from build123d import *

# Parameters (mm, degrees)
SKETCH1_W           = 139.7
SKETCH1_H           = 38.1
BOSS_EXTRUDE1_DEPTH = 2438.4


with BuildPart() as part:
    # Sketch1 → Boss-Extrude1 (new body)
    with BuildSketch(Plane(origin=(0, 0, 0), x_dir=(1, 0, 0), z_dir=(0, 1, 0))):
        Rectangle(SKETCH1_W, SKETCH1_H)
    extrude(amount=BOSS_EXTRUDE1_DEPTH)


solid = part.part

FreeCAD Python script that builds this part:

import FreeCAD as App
import Part
import Sketcher
from FreeCAD import Vector
Q = App.Units.Quantity

doc = App.newDocument("Part")
body = doc.addObject("PartDesign::Body", "Body")

# Sketch on XZ plane
sketch1 = doc.addObject("Sketcher::SketchObject", "Sketch")
body.addObject(sketch1)
sketch1.AttachmentSupport = (doc.XZ_Plane, [""])
sketch1.MapMode = "FlatFace"
sketch1.addGeometry(Part.LineSegment(Vector(-69.85, -19.05, 0), Vector(-69.85, 19.05, 0)), False)
sketch1.addGeometry(Part.LineSegment(Vector(-69.85, 19.05, 0), Vector(69.85, 19.05, 0)), False)
sketch1.addGeometry(Part.LineSegment(Vector(69.85, 19.05, 0), Vector(69.85, -19.05, 0)), False)
sketch1.addGeometry(Part.LineSegment(Vector(69.85, -19.05, 0), Vector(-69.85, -19.05, 0)), False)
sketch1.addConstraint(Sketcher.Constraint("Coincident", 0, 2, 1, 1))
sketch1.addConstraint(Sketcher.Constraint("Coincident", 1, 2, 2, 1))
sketch1.addConstraint(Sketcher.Constraint("Coincident", 2, 2, 3, 1))
sketch1.addConstraint(Sketcher.Constraint("Coincident", 3, 2, 0, 1))
sketch1.addConstraint(Sketcher.Constraint("Vertical", 0))
sketch1.addConstraint(Sketcher.Constraint("Horizontal", 1))
sketch1.addConstraint(Sketcher.Constraint("Vertical", 2))
sketch1.addConstraint(Sketcher.Constraint("Horizontal", 3))
sketch1.addConstraint(Sketcher.Constraint("Symmetric", 0, 2, 2, 2, -1, 1))
sketch1.addConstraint(Sketcher.Constraint("DistanceX", 1, 1, 1, 2, Q("5.5 in")))
sketch1.addConstraint(Sketcher.Constraint("DistanceY", 0, 1, 0, 2, Q("1.5 in")))
pad1 = doc.addObject("PartDesign::Pad", "Pad")
body.addObject(pad1)
pad1.Profile = sketch1
pad1.Length = Q("96 in")
pad1.Reversed = True

doc.recompute()
